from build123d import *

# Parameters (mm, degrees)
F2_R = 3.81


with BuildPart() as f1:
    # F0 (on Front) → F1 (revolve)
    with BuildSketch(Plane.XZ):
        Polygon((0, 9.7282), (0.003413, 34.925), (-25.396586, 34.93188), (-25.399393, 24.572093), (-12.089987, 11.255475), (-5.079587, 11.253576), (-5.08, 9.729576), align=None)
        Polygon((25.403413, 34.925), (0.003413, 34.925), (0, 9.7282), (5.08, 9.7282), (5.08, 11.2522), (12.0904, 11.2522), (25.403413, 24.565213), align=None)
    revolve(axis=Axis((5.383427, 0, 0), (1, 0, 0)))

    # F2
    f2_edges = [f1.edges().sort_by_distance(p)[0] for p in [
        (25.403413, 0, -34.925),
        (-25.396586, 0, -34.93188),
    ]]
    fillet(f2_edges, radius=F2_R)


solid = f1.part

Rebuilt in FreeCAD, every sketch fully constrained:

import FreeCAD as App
import Part
import Sketcher
from FreeCAD import Vector
Q = App.Units.Quantity


def edges_at(feature, points):
    """Names of the edges that pass closest to the given points."""
    edges = feature.Shape.Edges
    near = lambda p: min(range(len(edges)), key=lambda i: edges[i].distToShape(Part.Vertex(*p))[0])
    return sorted({f"Edge{near(p) + 1}" for p in points})


def add_polygon(sketch, points):
    """Adds a closed chain of lines whose ends are joined by coincident constraints."""
    first, n = sketch.GeometryCount, len(points)
    for a, b in zip(points, points[1:] + points[:1]):
        sketch.addGeometry(Part.LineSegment(App.Vector(*a, 0), App.Vector(*b, 0)), False)
    for i in range(n):
        sketch.addConstraint(Sketcher.Constraint("Coincident", first + i, 2, first + (i + 1) % n, 1))

doc = App.newDocument("Part")
body = doc.addObject("PartDesign::Body", "Body")

# Sketch on XZ plane
sketch1 = doc.addObject("Sketcher::SketchObject", "Sketch")
body.addObject(sketch1)
sketch1.AttachmentSupport = (doc.XZ_Plane, [""])
sketch1.MapMode = "FlatFace"
add_polygon(sketch1, [(0, 34.9), (-25.4, 34.9), (-25.4, 24.6), (-12.1, 11.3), (-5.1, 11.3), (-5.1, 9.7), (0, 9.7), (5.1, 9.7), (5.1, 11.3), (12.1, 11.3), (25.4, 24.6), (25.4, 34.9)])  # lines 0-11
sketch1.addConstraint([
    Sketcher.Constraint("Horizontal", 6),
    Sketcher.Constraint("Vertical", 7),
    Sketcher.Constraint("Horizontal", 8),
    Sketcher.Constraint("Vertical", 10),
    Sketcher.Constraint("Horizontal", 11),
    Sketcher.Constraint("PointOnObject", 5, 2, -2),
    Sketcher.Constraint("Perpendicular", 0, 1),
    Sketcher.Constraint("Perpendicular", 1, 3),
    Sketcher.Constraint("Perpendicular", 3, 4),
    Sketcher.Constraint("Perpendicular", 4, 5),
    Sketcher.Constraint("Equal", 2, 9),
    Sketcher.Constraint("DistanceX", 11, 2, 11, 1, Q("1 in")),
    Sketcher.Constraint("Distance", 0, Q("1 in")),
    Sketcher.Constraint("DistanceX", 6, 1, 6, 2, Q("0.2 in")),
    Sketcher.Constraint("Angle", 9, Q("45 deg")),
    Sketcher.Constraint("Distance", 5, Q("0.2 in")),
    Sketcher.Constraint("DistanceY", 7, 1, 7, 2, Q("0.06 in")),
    Sketcher.Constraint("Distance", 4, Q("0.06 in")),
    Sketcher.Constraint("DistanceX", 8, 1, 8, 2, Q("0.276 in")),
    Sketcher.Constraint("Distance", 3, Q("0.276 in")),
    Sketcher.Constraint("DistanceY", -1, 1, 5, 2, Q("0.383 in")),
    Sketcher.Constraint("DistanceY", -1, 1, 10, 2, Q("1.375 in")),
    Sketcher.Constraint("DistanceX", 0, 2, 2, 2, Q("13.306599 mm")),
    Sketcher.Constraint("DistanceY", 3, 2, 2, 2, Q("0.001899 mm")),
])
revolution = doc.addObject("PartDesign::Revolution", "Revolution")
body.addObject(revolution)
revolution.Profile = sketch1
revolution.ReferenceAxis = (sketch1, ["H_Axis"])
revolution.Angle = 360
doc.recompute()

fillet = doc.addObject("PartDesign::Fillet", "Fillet")
body.addObject(fillet)
fillet.Base = (revolution, edges_at(revolution, [(25.403, 0, -34.925), (-25.397, 0, -34.932)]))
fillet.Radius = Q("0.15 in")

doc.recompute()
